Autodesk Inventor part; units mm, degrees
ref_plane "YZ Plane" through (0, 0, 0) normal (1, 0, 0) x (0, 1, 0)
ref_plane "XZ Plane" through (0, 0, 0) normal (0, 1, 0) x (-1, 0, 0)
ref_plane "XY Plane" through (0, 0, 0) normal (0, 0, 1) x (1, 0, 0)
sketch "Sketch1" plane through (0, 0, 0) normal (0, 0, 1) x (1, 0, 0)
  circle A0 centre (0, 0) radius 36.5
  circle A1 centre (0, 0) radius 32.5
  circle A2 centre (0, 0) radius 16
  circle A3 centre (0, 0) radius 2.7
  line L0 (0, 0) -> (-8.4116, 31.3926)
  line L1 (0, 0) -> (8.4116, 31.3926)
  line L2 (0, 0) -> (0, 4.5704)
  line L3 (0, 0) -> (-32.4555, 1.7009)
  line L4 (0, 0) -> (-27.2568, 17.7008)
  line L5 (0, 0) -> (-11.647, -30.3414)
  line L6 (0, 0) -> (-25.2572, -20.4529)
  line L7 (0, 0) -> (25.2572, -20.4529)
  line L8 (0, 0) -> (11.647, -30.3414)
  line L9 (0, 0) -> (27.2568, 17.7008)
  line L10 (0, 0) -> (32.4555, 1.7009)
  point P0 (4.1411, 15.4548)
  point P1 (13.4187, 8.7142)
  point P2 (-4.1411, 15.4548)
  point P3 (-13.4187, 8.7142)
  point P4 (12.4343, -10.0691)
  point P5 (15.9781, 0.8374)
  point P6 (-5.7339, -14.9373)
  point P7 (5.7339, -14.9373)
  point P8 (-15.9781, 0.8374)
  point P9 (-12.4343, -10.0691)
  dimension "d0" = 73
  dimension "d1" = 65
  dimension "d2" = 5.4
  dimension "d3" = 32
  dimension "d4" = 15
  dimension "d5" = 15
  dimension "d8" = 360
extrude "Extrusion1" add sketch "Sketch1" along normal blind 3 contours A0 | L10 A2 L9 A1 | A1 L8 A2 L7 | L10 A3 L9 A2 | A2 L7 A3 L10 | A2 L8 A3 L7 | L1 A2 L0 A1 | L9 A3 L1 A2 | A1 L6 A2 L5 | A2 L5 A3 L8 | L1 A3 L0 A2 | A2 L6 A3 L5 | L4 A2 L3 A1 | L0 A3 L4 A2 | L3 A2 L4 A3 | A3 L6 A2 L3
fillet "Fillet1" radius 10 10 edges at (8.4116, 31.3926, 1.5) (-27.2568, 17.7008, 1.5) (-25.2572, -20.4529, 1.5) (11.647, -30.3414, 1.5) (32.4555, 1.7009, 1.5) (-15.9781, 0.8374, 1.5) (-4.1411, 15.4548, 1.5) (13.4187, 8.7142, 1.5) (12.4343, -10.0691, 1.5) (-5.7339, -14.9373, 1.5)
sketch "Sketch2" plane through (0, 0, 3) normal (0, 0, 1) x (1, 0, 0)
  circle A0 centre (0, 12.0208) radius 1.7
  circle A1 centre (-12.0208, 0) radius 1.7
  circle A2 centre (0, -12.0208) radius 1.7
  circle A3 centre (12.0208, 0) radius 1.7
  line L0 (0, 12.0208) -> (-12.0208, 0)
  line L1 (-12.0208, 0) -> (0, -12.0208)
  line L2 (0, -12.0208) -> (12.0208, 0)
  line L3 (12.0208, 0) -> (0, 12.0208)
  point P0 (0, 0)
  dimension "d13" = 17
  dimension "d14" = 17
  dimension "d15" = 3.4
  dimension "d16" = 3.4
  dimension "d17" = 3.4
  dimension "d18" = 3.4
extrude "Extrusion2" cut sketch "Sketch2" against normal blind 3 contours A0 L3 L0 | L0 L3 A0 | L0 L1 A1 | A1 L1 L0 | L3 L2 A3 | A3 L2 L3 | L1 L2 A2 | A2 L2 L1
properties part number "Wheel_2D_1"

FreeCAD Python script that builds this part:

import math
import FreeCAD as App
import Part
import Sketcher
from FreeCAD import Vector
Q = App.Units.Quantity


def edges_at(feature, points):
    """Names of the edges that pass closest to the given points."""
    edges = feature.Shape.Edges
    near = lambda p: min(range(len(edges)), key=lambda i: edges[i].distToShape(Part.Vertex(*p))[0])
    return sorted({f"Edge{near(p) + 1}" for p in points})

doc = App.newDocument("Part")
body = doc.addObject("PartDesign::Body", "Body")

sketch1 = doc.addObject("Sketcher::SketchObject", "Sketch")
body.addObject(sketch1)
sketch1.AttachmentSupport = (doc.XY_Plane, [""])
sketch1.MapMode = "FlatFace"
sketch1.addGeometry(Part.Circle(Vector(0, 0, 0), Vector(0, 0, 1), 36.5), False)
sketch1.addGeometry(Part.ArcOfCircle(Part.Circle(Vector(0, 0, 0), Vector(0, 0, 1), 32.5), math.radians(-39), math.radians(3)), False)
sketch1.addGeometry(Part.LineSegment(Vector(25.3, -20.5, 0), Vector(12.4, -10.1, 0)), False)
sketch1.addGeometry(Part.ArcOfCircle(Part.Circle(Vector(0, 0, 0), Vector(0, 0, 1), 16), math.radians(-39), math.radians(3)), False)
sketch1.addGeometry(Part.LineSegment(Vector(16, 0.8, 0), Vector(32.5, 1.7, 0)), False)
sketch1.addGeometry(Part.ArcOfCircle(Part.Circle(Vector(0, 0, 0), Vector(0, 0, 1), 32.5), math.radians(33), math.radians(75)), False)
sketch1.addGeometry(Part.LineSegment(Vector(27.3, 17.7, 0), Vector(13.4, 8.7, 0)), False)
sketch1.addGeometry(Part.ArcOfCircle(Part.Circle(Vector(0, 0, 0), Vector(0, 0, 1), 16), math.radians(33), math.radians(75)), False)
sketch1.addGeometry(Part.LineSegment(Vector(4.1, 15.5, 0), Vector(8.4, 31.4, 0)), False)
sketch1.addGeometry(Part.ArcOfCircle(Part.Circle(Vector(0, 0, 0), Vector(0, 0, 1), 32.5), math.radians(105), math.radians(147)), False)
sketch1.addGeometry(Part.LineSegment(Vector(-8.4, 31.4, 0), Vector(-4.1, 15.5, 0)), False)
sketch1.addGeometry(Part.ArcOfCircle(Part.Circle(Vector(0, 0, 0), Vector(0, 0, 1), 16), math.radians(105), math.radians(147)), False)
sketch1.addGeometry(Part.LineSegment(Vector(-13.4, 8.7, 0), Vector(-27.3, 17.7, 0)), False)
sketch1.addGeometry(Part.ArcOfCircle(Part.Circle(Vector(0, 0, 0), Vector(0, 0, 1), 32.5), math.radians(177), math.radians(219)), False)
sketch1.addGeometry(Part.LineSegment(Vector(-32.5, 1.7, 0), Vector(-16, 0.8, 0)), False)
sketch1.addGeometry(Part.ArcOfCircle(Part.Circle(Vector(0, 0, 0), Vector(0, 0, 1), 16), math.radians(177), math.radians(219)), False)
sketch1.addGeometry(Part.LineSegment(Vector(-12.4, -10.1, 0), Vector(-25.3, -20.5, 0)), False)
sketch1.addGeometry(Part.ArcOfCircle(Part.Circle(Vector(0, 0, 0), Vector(0, 0, 1), 32.5), math.radians(-111), math.radians(-69)), False)
sketch1.addGeometry(Part.LineSegment(Vector(-11.6, -30.3, 0), Vector(-5.7, -14.9, 0)), False)
sketch1.addGeometry(Part.ArcOfCircle(Part.Circle(Vector(0, 0, 0), Vector(0, 0, 1), 16), math.radians(-111), math.radians(-69)), False)
sketch1.addGeometry(Part.LineSegment(Vector(5.7, -14.9, 0), Vector(11.6, -30.3, 0)), False)
sketch1.addGeometry(Part.Circle(Vector(0, 0, 0), Vector(0, 0, 1), 2.7), False)
sketch1.addConstraint(Sketcher.Constraint("Coincident", 1, 1, 2, 1))
sketch1.addConstraint(Sketcher.Constraint("Coincident", 2, 2, 3, 1))
sketch1.addConstraint(Sketcher.Constraint("Coincident", 3, 2, 4, 1))
sketch1.addConstraint(Sketcher.Constraint("Coincident", 4, 2, 1, 2))
sketch1.addConstraint(Sketcher.Constraint("Coincident", 5, 1, 6, 1))
sketch1.addConstraint(Sketcher.Constraint("Coincident", 6, 2, 7, 1))
sketch1.addConstraint(Sketcher.Constraint("Coincident", 7, 2, 8, 1))
sketch1.addConstraint(Sketcher.Constraint("Coincident", 8, 2, 5, 2))
sketch1.addConstraint(Sketcher.Constraint("Coincident", 9, 1, 10, 1))
sketch1.addConstraint(Sketcher.Constraint("Coincident", 10, 2, 11, 1))
sketch1.addConstraint(Sketcher.Constraint("Coincident", 11, 2, 12, 1))
sketch1.addConstraint(Sketcher.Constraint("Coincident", 12, 2, 9, 2))
sketch1.addConstraint(Sketcher.Constraint("Coincident", 13, 1, 14, 1))
sketch1.addConstraint(Sketcher.Constraint("Coincident", 14, 2, 15, 1))
sketch1.addConstraint(Sketcher.Constraint("Coincident", 15, 2, 16, 1))
sketch1.addConstraint(Sketcher.Constraint("Coincident", 16, 2, 13, 2))
sketch1.addConstraint(Sketcher.Constraint("Coincident", 17, 1, 18, 1))
sketch1.addConstraint(Sketcher.Constraint("Coincident", 18, 2, 19, 1))
sketch1.addConstraint(Sketcher.Constraint("Coincident", 19, 2, 20, 1))
sketch1.addConstraint(Sketcher.Constraint("Coincident", 20, 2, 17, 2))
sketch1.addConstraint(Sketcher.Constraint("Coincident", 0, 3, -1, 1))
sketch1.addConstraint(Sketcher.Constraint("Coincident", 1, 3, -1, 1))
sketch1.addConstraint(Sketcher.Constraint("Coincident", 3, 3, -1, 1))
sketch1.addConstraint(Sketcher.Constraint("Coincident", 5, 3, -1, 1))
sketch1.addConstraint(Sketcher.Constraint("Coincident", 7, 3, -1, 1))
sketch1.addConstraint(Sketcher.Constraint("Coincident", 9, 3, -1, 1))
sketch1.addConstraint(Sketcher.Constraint("Coincident", 11, 3, -1, 1))
sketch1.addConstraint(Sketcher.Constraint("Coincident", 13, 3, -1, 1))
sketch1.addConstraint(Sketcher.Constraint("Coincident", 15, 3, -1, 1))
sketch1.addConstraint(Sketcher.Constraint("Coincident", 17, 3, -1, 1))
sketch1.addConstraint(Sketcher.Constraint("Coincident", 19, 3, -1, 1))
sketch1.addConstraint(Sketcher.Constraint("Coincident", 21, 3, -1, 1))
sketch1.addConstraint(Sketcher.Constraint("Equal", 1, 5))
sketch1.addConstraint(Sketcher.Constraint("Equal", 3, 7))
sketch1.addConstraint(Sketcher.Constraint("Equal", 5, 9))
sketch1.addConstraint(Sketcher.Constraint("Equal", 7, 11))
sketch1.addConstraint(Sketcher.Constraint("Equal", 9, 13))
sketch1.addConstraint(Sketcher.Constraint("Equal", 11, 15))
sketch1.addConstraint(Sketcher.Constraint("Equal", 13, 17))
sketch1.addConstraint(Sketcher.Constraint("Equal", 15, 19))
sketch1.addConstraint(Sketcher.Constraint("Horizontal", 8, 2, 9, 1))
sketch1.addConstraint(Sketcher.Constraint("Horizontal", 7, 2, 10, 2))
sketch1.addConstraint(Sketcher.Constraint("Horizontal", 6, 2, 11, 2))
sketch1.addConstraint(Sketcher.Constraint("Horizontal", 5, 1, 12, 2))
sketch1.addConstraint(Sketcher.Constraint("Horizontal", 4, 2, 13, 1))
sketch1.addConstraint(Sketcher.Constraint("Horizontal", 3, 2, 14, 2))
sketch1.addConstraint(Sketcher.Constraint("Horizontal", 2, 2, 15, 2))
sketch1.addConstraint(Sketcher.Constraint("Horizontal", 1, 1, 16, 2))
sketch1.addConstraint(Sketcher.Constraint("Horizontal", 18, 2, 19, 2))
sketch1.addConstraint(Sketcher.Constraint("Horizontal", 17, 1, 20, 2))
sketch1.addConstraint(Sketcher.Constraint("Diameter", 0, 73.0))
sketch1.addConstraint(Sketcher.Constraint("Radius", 3, 16.0))
sketch1.addConstraint(Sketcher.Constraint("Diameter", 21, 5.4))
sketch1.addConstraint(Sketcher.Constraint("Radius", 1, 32.5))
sketch1.addConstraint(Sketcher.Constraint("Angle", 2, Q("141 deg")))
sketch1.addConstraint(Sketcher.Constraint("Angle", 4, Q("3 deg")))
sketch1.addConstraint(Sketcher.Constraint("Angle", 6, Q("-147 deg")))
sketch1.addConstraint(Sketcher.Constraint("Angle", 8, Q("75 deg")))
sketch1.addConstraint(Sketcher.Constraint("Angle", 18, Q("69 deg")))
sketch1.addConstraint(Sketcher.Constraint("DistanceY", 4, 2, 5, 1, 16.0))
sketch1.addConstraint(Sketcher.Constraint("DistanceY", 2, 2, 4, 2, 11.77))
sketch1.addConstraint(Sketcher.Constraint("DistanceY", 1, 1, -1, 1, 20.453))
sketch1.addConstraint(Sketcher.Constraint("DistanceX", -1, 1, 7, 2, 4.141))
sketch1.addConstraint(Sketcher.Constraint("DistanceX", 17, 1, -1, 1, 11.647))
pad1 = doc.addObject("PartDesign::Pad", "Pad")
body.addObject(pad1)
pad1.Profile = sketch1
pad1.Length = 3
doc.recompute()

fillet = doc.addObject("PartDesign::Fillet", "Fillet")
body.addObject(fillet)
fillet.Base = (pad1, edges_at(pad1, [
    (8.412, 31.393, 1.5),
    (-27.257, 17.701, 1.5),
    (-25.257, -20.453, 1.5),
    (11.647, -30.341, 1.5),
    (32.456, 1.701, 1.5),
    (-15.978, 0.837, 1.5),
    (-4.141, 15.455, 1.5),
    (13.419, 8.714, 1.5),
    (12.434, -10.069, 1.5),
    (-5.734, -14.937, 1.5),
]))
fillet.Radius = 10

sketch2 = doc.addObject("Sketcher::SketchObject", "Sketch001")
body.addObject(sketch2)
sketch2.AttachmentSupport = (doc.XY_Plane, [""])
sketch2.MapMode = "FlatFace"
sketch2.AttachmentOffset = App.Placement(Vector(0, 0, 3), App.Rotation())
sketch2.addGeometry(Part.Circle(Vector(0, 12, 0), Vector(0, 0, 1), 1.7), False)
sketch2.addGeometry(Part.Circle(Vector(-12, 0, 0), Vector(0, 0, 1), 1.7), False)
sketch2.addGeometry(Part.Circle(Vector(12, 0, 0), Vector(0, 0, 1), 1.7), False)
sketch2.addGeometry(Part.Circle(Vector(0, -12, 0), Vector(0, 0, 1), 1.7), False)
sketch2.addConstraint(Sketcher.Constraint("Equal", 0, 1))
sketch2.addConstraint(Sketcher.Constraint("Equal", 1, 2))
sketch2.addConstraint(Sketcher.Constraint("Equal", 2, 3))
sketch2.addConstraint(Sketcher.Constraint("Symmetric", 1, 3, 2, 3, -1, 1))
sketch2.addConstraint(Sketcher.Constraint("Symmetric", 0, 3, 3, 3, -1, 1))
sketch2.addConstraint(Sketcher.Constraint("PointOnObject", 0, 3, -2))
sketch2.addConstraint(Sketcher.Constraint("PointOnObject", 1, 3, -1))
sketch2.addConstraint(Sketcher.Constraint("Diameter", 0, 3.4))
sketch2.addConstraint(Sketcher.Constraint("DistanceY", -1, 1, 0, 3, 12.0208))
sketch2.addConstraint(Sketcher.Constraint("DistanceX", 1, 3, -1, 1, 12.0208))
pocket1 = doc.addObject("PartDesign::Pocket", "Pocket")
body.addObject(pocket1)
pocket1.Profile = sketch2
pocket1.Length = 3

doc.recompute()
